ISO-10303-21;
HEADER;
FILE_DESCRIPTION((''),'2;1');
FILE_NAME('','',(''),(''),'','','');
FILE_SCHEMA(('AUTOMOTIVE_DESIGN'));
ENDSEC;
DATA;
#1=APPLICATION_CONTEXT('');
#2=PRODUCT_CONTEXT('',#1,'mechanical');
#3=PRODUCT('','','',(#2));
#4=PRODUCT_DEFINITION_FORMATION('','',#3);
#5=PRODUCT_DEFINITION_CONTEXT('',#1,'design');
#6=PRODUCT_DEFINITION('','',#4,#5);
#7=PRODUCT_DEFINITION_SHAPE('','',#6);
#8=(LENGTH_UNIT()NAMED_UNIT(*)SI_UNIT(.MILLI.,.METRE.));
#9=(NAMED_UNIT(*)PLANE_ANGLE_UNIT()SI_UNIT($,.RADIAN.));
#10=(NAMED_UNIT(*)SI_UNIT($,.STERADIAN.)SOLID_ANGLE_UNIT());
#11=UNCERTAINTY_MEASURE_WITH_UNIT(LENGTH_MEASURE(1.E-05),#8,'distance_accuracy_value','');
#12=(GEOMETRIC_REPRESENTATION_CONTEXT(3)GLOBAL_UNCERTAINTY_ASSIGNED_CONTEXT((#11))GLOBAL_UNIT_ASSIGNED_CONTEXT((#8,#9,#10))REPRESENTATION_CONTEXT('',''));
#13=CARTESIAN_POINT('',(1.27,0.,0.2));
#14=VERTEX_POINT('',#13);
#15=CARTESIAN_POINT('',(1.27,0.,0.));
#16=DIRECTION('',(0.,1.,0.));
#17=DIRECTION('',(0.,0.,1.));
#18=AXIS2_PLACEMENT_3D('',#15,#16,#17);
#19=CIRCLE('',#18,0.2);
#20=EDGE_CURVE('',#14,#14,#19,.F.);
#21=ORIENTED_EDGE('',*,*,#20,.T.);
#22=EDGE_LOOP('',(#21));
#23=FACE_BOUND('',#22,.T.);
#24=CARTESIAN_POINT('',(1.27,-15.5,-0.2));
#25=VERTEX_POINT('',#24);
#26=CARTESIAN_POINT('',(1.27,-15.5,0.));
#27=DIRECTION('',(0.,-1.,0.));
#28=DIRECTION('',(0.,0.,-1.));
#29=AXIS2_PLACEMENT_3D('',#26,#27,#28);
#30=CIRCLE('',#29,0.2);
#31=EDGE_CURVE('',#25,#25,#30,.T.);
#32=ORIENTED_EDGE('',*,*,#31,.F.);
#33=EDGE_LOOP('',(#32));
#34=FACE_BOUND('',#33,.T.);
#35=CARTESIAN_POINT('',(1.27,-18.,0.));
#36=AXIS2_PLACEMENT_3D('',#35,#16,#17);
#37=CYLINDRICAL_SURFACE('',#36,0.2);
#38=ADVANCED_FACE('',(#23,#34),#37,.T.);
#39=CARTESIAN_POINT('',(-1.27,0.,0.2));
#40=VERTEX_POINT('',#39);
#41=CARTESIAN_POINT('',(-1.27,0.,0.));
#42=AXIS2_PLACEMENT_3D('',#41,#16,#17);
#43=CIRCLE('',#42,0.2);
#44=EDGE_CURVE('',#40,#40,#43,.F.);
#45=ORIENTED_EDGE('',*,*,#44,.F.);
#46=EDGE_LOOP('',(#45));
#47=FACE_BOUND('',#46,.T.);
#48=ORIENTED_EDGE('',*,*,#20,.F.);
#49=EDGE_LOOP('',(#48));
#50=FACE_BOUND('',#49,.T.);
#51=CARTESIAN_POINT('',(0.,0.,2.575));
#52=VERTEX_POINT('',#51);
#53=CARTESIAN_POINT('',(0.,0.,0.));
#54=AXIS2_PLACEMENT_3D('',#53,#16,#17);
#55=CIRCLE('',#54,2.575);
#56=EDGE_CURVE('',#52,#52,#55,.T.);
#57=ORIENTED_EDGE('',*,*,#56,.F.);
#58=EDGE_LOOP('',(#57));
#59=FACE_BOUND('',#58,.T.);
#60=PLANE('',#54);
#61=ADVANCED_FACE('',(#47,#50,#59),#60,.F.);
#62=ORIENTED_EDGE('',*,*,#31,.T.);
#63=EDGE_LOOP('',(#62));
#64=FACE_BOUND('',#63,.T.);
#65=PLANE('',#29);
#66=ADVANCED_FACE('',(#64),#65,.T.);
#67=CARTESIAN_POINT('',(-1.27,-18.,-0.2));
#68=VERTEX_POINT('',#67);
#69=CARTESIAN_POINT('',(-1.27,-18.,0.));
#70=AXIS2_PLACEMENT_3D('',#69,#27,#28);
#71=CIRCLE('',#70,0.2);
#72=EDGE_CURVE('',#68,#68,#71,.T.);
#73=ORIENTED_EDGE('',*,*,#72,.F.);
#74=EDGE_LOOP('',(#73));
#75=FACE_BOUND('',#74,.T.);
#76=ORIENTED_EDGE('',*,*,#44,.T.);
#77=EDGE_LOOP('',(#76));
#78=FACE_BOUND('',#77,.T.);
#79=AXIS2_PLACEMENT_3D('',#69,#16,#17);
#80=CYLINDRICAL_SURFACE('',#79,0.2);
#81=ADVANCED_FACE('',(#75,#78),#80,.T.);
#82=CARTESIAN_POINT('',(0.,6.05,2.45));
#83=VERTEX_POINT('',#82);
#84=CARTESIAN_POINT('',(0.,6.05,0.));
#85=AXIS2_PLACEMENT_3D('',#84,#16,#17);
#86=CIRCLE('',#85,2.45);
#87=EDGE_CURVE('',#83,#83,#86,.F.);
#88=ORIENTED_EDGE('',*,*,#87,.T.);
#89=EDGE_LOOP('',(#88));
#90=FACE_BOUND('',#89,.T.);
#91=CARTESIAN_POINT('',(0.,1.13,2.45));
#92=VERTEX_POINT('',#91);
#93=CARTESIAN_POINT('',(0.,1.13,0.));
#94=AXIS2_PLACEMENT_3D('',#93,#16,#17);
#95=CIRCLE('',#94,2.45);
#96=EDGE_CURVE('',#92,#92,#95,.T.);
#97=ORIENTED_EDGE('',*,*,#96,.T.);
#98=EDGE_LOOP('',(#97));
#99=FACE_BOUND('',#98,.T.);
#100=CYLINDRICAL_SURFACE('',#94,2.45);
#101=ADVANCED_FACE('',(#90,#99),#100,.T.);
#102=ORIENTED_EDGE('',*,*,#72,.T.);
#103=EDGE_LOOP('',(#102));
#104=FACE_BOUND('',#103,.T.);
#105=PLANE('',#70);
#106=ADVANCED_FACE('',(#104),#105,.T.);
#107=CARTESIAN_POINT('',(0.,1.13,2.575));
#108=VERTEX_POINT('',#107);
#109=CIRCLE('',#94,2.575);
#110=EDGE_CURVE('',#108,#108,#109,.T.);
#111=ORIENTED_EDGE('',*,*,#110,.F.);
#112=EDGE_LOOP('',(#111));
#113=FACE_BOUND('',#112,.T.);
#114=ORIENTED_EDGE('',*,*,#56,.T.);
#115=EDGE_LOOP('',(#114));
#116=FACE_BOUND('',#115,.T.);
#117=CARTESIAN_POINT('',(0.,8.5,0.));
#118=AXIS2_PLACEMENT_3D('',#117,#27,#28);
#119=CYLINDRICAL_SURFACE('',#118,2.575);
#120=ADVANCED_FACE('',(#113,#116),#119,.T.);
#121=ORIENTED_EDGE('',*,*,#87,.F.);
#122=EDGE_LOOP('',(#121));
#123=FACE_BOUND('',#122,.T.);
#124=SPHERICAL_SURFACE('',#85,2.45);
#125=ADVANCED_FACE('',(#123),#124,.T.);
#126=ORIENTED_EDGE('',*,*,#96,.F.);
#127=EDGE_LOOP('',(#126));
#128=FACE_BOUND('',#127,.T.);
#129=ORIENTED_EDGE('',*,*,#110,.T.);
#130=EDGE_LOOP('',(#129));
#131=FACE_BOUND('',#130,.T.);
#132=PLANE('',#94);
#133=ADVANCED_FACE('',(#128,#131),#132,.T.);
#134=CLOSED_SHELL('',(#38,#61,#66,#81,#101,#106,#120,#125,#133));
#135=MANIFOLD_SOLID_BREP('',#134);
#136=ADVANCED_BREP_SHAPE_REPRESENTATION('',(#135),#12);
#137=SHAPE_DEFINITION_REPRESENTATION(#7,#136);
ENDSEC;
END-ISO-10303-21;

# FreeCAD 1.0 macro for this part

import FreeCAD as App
import Part
import Sketcher
from FreeCAD import Vector


def edges_at(feature, points):
    """Names of the edges that pass closest to the given points."""
    edges = feature.Shape.Edges
    near = lambda p: min(range(len(edges)), key=lambda i: edges[i].distToShape(Part.Vertex(*p))[0])
    return sorted({f"Edge{near(p) + 1}" for p in points})

doc = App.newDocument("Part")
body = doc.addObject("PartDesign::Body", "Body")

# Sketch on XZ plane
sketch1 = doc.addObject("Sketcher::SketchObject", "Sketch")
body.addObject(sketch1)
sketch1.AttachmentSupport = (doc.XZ_Plane, [""])
sketch1.MapMode = "FlatFace"
sketch1.addGeometry(Part.Circle(Vector(0, 0, 0), Vector(0, 0, 1), 2.6), False)
sketch1.addConstraint([
    Sketcher.Constraint("Coincident", 0, 3, -1, 1),
    Sketcher.Constraint("Diameter", 0, 5.15),
])
pad1 = doc.addObject("PartDesign::Pad", "Pad")
body.addObject(pad1)
pad1.Profile = sketch1
pad1.Length = 8.5
pad1.Reversed = True

# Sketch on XZ plane
sketch2 = doc.addObject("Sketcher::SketchObject", "Sketch001")
body.addObject(sketch2)
sketch2.AttachmentSupport = (doc.XZ_Plane, [""])
sketch2.MapMode = "FlatFace"
sketch2.AttachmentOffset = App.Placement(Vector(0, 0, -8.5), App.Rotation())
sketch2.addGeometry([
    Part.Circle(Vector(0, 0, 0), Vector(0, 0, 1), 2.6),
    Part.Circle(Vector(0, 0, 0), Vector(0, 0, 1), 2.5),
], False)
sketch2.addConstraint([
    Sketcher.Constraint("Coincident", 0, 3, -1, 1),
    Sketcher.Constraint("Coincident", 1, 3, -1, 1),
    Sketcher.Constraint("Diameter", 1, 4.9),
    Sketcher.Constraint("Diameter", 0, 5.15),
])
pocket1 = doc.addObject("PartDesign::Pocket", "Pocket")
body.addObject(pocket1)
pocket1.Profile = sketch2
pocket1.Length = 7.37
pocket1.Reversed = True
doc.recompute()

fillet = doc.addObject("PartDesign::Fillet", "Fillet")
body.addObject(fillet)
fillet.Base = (pocket1, edges_at(pocket1, [(-2.45, 8.5, 0)]))
fillet.Radius = 2.45

# Sketch on XZ plane
sketch3 = doc.addObject("Sketcher::SketchObject", "Sketch002")
body.addObject(sketch3)
sketch3.AttachmentSupport = (doc.XZ_Plane, [""])
sketch3.MapMode = "FlatFace"
sketch3.addGeometry([
    Part.Circle(Vector(-1.27, 0, 0), Vector(0, 0, 1), 0.2),
    Part.Circle(Vector(1.27, 0, 0), Vector(0, 0, 1), 0.2),
], False)
sketch3.addConstraint([
    Sketcher.Constraint("Equal", 0, 1),
    Sketcher.Constraint("Symmetric", 0, 3, 1, 3, -1, 1),
    Sketcher.Constraint("PointOnObject", 0, 3, -1),
    Sketcher.Constraint("Diameter", 0, 0.4),
    Sketcher.Constraint("DistanceX", 0, 3, -1, 1, 1.27),
])
pad2 = doc.addObject("PartDesign::Pad", "Pad001")
body.addObject(pad2)
pad2.Profile = sketch3
pad2.Length = 18

# Sketch on XZ plane
sketch4 = doc.addObject("Sketcher::SketchObject", "Sketch003")
body.addObject(sketch4)
sketch4.AttachmentSupport = (doc.XZ_Plane, [""])
sketch4.MapMode = "FlatFace"
sketch4.AttachmentOffset = App.Placement(Vector(0, 0, 18), App.Rotation())
sketch4.addGeometry(Part.Circle(Vector(1.27, 0, 0), Vector(0, 0, 1), 0.23), False)
sketch4.addConstraint([
    Sketcher.Constraint("PointOnObject", 0, 3, -1),
    Sketcher.Constraint("Diameter", 0, 0.45),
    Sketcher.Constraint("DistanceX", -1, 1, 0, 3, 1.27),
])
pocket2 = doc.addObject("PartDesign::Pocket", "Pocket001")
body.addObject(pocket2)
pocket2.Profile = sketch4
pocket2.Length = 2.5

doc.recompute()
